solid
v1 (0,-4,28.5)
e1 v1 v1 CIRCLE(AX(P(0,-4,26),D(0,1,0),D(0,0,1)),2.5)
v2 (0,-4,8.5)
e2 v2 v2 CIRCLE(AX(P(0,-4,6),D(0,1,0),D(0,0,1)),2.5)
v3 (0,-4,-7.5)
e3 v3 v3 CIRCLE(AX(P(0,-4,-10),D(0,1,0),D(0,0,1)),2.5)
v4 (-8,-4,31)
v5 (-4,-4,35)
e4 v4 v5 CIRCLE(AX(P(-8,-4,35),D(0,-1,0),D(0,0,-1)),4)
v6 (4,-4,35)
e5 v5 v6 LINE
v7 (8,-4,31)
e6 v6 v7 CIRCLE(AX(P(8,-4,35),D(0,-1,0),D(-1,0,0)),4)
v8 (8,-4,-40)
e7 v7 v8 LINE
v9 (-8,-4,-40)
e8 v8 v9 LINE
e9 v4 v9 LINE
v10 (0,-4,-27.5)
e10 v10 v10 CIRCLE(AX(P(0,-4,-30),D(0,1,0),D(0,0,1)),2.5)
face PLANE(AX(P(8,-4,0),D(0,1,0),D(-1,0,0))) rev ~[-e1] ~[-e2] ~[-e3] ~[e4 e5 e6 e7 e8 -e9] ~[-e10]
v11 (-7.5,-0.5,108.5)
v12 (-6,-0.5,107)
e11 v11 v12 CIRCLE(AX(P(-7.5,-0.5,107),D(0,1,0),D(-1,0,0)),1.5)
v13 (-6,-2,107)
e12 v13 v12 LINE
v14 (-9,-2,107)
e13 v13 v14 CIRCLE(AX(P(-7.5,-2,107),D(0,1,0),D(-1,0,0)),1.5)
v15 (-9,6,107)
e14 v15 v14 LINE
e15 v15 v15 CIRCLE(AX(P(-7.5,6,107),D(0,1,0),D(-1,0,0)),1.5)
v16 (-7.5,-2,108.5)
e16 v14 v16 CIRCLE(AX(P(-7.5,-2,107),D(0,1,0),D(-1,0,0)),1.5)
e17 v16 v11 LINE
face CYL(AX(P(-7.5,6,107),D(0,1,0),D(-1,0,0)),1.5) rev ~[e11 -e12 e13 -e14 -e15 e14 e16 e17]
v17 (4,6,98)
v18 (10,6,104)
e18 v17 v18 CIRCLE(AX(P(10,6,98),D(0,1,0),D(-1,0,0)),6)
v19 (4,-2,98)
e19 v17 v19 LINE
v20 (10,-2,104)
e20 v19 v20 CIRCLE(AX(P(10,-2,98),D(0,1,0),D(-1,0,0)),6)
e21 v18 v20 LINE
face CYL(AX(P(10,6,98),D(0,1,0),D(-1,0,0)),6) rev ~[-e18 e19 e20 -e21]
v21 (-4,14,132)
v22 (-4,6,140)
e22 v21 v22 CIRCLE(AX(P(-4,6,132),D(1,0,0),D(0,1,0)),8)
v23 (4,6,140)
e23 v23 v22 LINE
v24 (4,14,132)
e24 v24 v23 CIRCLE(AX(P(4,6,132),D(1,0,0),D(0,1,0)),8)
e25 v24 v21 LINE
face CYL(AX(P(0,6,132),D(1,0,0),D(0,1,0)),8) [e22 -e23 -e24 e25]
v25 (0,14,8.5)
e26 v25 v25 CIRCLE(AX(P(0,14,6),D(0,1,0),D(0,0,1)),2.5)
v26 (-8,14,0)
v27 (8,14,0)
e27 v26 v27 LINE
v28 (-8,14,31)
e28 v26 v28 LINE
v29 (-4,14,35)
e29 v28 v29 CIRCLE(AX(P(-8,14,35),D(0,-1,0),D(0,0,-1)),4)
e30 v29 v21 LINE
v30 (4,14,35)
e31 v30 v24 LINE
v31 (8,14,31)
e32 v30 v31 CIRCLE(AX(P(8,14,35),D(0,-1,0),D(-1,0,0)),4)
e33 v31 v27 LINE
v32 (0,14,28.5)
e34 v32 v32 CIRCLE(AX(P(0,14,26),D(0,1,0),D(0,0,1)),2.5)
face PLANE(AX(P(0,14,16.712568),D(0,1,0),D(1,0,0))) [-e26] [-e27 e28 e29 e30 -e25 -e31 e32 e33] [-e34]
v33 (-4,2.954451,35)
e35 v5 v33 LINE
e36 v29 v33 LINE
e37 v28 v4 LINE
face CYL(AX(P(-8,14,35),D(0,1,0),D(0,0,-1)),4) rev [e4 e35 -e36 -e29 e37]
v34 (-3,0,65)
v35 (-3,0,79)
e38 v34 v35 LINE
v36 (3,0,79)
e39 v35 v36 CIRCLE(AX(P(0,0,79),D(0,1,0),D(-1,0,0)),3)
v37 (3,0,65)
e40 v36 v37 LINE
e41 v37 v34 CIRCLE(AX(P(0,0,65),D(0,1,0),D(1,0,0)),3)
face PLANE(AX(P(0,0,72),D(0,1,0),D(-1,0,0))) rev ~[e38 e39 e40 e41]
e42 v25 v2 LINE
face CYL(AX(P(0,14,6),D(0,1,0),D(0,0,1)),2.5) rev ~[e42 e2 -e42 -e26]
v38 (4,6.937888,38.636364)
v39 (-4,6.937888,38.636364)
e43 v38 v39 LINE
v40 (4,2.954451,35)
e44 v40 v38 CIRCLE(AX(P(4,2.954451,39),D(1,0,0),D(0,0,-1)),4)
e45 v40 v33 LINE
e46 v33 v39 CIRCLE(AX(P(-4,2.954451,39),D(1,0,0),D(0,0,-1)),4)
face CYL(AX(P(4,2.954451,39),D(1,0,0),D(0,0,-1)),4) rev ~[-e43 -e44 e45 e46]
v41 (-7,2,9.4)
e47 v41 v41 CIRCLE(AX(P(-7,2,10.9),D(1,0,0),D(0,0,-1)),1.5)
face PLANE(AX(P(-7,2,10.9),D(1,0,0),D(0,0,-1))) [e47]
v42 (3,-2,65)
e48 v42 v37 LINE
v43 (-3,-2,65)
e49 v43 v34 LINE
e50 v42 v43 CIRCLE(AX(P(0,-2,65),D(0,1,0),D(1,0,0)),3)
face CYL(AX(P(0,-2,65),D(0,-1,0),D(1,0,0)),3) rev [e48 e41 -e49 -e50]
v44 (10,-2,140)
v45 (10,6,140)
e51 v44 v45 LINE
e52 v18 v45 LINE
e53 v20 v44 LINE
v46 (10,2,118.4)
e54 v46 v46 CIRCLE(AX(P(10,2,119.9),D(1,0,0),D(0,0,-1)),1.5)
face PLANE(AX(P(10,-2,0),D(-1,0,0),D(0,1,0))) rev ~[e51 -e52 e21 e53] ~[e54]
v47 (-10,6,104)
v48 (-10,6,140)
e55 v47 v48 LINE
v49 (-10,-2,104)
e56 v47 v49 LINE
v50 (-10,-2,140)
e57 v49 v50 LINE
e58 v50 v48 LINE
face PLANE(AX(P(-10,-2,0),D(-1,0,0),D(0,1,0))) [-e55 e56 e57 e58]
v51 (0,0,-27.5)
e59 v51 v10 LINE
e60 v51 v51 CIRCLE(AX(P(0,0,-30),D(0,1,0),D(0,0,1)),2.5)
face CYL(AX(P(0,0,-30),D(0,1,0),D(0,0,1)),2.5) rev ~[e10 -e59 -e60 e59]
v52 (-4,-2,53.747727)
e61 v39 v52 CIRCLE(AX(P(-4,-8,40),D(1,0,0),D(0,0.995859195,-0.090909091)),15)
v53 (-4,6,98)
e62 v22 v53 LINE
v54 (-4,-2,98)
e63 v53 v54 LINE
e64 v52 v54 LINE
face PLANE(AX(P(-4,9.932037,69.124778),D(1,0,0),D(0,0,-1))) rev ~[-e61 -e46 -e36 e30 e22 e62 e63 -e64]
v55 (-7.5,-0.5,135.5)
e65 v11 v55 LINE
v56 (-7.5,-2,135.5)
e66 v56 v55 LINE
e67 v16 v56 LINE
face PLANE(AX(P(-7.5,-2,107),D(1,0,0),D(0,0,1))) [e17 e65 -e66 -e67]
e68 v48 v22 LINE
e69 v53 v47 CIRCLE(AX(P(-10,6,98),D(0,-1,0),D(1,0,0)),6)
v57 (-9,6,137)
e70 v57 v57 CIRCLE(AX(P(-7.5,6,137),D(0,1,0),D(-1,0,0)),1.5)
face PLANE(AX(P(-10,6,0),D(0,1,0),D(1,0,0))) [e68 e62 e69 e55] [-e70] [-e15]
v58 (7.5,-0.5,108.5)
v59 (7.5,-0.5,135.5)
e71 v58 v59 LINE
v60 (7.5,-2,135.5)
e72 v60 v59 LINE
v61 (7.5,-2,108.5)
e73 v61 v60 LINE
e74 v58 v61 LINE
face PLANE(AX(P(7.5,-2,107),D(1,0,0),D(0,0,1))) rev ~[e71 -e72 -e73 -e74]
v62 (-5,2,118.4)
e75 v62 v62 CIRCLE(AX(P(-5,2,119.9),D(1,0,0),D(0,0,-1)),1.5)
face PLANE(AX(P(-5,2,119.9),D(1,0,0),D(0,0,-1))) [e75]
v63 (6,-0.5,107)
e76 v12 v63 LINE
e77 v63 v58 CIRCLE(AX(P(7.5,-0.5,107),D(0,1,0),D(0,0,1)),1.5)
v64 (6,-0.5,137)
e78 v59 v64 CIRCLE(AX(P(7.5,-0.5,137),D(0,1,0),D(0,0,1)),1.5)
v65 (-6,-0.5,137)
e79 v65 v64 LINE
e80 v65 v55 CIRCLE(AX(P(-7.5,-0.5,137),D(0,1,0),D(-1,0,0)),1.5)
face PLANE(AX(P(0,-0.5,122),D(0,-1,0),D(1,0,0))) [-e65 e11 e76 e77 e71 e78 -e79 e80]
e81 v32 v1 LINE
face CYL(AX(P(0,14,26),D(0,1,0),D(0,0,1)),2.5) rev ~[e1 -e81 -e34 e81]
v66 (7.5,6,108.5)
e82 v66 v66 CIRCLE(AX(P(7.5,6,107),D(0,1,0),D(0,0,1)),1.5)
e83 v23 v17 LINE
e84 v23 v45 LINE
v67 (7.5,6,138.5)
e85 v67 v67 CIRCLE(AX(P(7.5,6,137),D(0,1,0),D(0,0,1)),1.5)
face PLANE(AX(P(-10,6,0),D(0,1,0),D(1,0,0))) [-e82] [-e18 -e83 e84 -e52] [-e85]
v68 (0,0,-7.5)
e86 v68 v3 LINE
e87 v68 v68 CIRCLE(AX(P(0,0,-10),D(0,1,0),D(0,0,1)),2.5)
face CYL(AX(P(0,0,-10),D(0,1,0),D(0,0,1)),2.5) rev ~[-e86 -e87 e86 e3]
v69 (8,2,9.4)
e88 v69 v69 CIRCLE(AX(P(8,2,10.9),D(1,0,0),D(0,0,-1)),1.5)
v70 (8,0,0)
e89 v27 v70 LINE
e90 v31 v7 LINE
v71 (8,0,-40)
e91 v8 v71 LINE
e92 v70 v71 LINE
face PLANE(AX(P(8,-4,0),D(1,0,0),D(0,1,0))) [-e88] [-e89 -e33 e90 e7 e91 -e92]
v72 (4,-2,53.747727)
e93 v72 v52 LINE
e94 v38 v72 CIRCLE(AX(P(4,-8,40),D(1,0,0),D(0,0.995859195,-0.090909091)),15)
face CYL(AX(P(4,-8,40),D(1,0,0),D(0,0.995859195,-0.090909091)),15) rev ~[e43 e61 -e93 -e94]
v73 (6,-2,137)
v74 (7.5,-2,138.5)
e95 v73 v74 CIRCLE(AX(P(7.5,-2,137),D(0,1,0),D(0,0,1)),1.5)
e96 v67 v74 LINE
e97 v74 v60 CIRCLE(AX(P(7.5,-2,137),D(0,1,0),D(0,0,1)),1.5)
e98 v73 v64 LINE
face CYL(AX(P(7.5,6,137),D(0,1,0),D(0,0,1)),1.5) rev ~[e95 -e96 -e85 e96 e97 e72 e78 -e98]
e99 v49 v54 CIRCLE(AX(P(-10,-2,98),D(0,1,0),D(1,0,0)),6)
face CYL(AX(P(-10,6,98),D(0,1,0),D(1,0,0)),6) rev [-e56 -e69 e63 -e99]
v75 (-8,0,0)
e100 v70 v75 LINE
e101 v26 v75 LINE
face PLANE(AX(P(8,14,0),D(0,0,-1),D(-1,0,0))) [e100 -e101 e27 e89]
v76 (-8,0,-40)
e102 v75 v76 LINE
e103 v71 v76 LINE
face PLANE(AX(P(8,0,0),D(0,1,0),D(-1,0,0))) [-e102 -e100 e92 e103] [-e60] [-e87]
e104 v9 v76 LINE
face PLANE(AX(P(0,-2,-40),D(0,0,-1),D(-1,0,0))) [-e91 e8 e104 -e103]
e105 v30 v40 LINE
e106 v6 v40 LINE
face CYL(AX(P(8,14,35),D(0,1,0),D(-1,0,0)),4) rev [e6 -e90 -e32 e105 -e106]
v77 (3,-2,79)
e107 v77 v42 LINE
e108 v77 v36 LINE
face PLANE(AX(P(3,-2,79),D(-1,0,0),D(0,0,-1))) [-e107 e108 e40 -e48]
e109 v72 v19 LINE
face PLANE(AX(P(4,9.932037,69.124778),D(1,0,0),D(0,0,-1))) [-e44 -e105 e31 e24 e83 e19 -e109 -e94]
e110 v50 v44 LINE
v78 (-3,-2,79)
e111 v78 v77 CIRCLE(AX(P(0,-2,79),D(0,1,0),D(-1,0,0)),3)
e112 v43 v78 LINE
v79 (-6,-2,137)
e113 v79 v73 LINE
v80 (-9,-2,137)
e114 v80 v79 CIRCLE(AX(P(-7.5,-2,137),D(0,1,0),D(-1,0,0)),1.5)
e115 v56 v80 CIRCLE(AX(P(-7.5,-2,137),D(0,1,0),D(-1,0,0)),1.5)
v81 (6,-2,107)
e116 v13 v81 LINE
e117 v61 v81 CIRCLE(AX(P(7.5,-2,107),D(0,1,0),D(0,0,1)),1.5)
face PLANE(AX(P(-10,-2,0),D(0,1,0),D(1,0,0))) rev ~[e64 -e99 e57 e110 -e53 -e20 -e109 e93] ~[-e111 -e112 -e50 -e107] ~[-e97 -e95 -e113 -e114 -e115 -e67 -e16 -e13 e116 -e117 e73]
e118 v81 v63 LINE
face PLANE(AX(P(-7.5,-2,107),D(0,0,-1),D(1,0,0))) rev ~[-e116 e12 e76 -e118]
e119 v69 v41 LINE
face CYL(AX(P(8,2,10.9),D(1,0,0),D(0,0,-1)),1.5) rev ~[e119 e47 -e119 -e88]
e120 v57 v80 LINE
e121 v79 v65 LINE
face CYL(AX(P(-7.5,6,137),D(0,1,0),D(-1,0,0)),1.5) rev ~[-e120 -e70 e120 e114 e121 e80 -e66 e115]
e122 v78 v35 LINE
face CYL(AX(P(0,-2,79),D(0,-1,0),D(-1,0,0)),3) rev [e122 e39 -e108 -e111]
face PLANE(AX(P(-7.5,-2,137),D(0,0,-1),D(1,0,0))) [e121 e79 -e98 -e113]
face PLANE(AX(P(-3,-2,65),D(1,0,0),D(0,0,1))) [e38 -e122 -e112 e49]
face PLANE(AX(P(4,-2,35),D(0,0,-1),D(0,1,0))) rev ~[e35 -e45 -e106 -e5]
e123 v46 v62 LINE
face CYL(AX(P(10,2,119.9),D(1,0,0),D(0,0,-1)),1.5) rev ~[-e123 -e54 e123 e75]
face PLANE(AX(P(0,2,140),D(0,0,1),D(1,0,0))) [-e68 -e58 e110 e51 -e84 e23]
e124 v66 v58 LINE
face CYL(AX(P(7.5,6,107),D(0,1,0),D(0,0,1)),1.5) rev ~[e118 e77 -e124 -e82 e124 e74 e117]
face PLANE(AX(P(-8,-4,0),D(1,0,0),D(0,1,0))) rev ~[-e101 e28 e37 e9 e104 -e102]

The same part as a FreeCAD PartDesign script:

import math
import FreeCAD as App
import Part
import Sketcher
Q = App.Units.Quantity

doc = App.newDocument("Part")
params = doc.addObject("Spreadsheet::Sheet", "Params")
for row, (alias, value) in enumerate([
    ("sketch1_width", "20 mm"),
    ("sketch1_height", "8 mm"),
    ("pad1_length", "140 mm"),
    ("sketch2_radius", "6 mm"),
    ("sketch2_height", "104 mm"),
    ("sketch3_radius", "8 mm"),
    ("sketch3_height", "140 mm"),
    ("pad2_length", "8 mm"),
    ("sketch4_radius", "4 mm"),
    ("sketch4_radius2", "15 mm"),
    ("sketch5_radius", "4 mm"),
    ("sketch5_width", "8 mm"),
    ("sketch5_height", "31 mm"),
    ("pad3_length", "18 mm"),
    ("sketch6_width", "16 mm"),
    ("sketch6_height", "4 mm"),
    ("pad4_length", "40 mm"),
    ("sketch7_diameter", "3 mm"),
    ("sketch8_width", "15 mm"),
    ("sketch8_height", "30 mm"),
    ("pocket4_length", "1.5 mm"),
    ("sketch9_radius", "3 mm"),
    ("sketch9_height", "14 mm"),
    ("pocket5_length", "2 mm"),
    ("sketch10_diameter", "5 mm"),
    ("sketch11_diameter", "5 mm"),
    ("sketch12_diameter", "3 mm"),
    ("pocket8_length", "15 mm"),
    ("sketch13_diameter", "3 mm"),
    ("pocket9_length", "15 mm"),
], start=1):
    params.set(f"A{row}", alias)
    params.set(f"B{row}", "=" + value)
    params.setAlias(f"B{row}", alias)

body = doc.addObject("PartDesign::Body", "Body")

# Sketch on XY plane
sketch1 = body.newObject("Sketcher::SketchObject", "Sketch")
sketch1.AttachmentSupport = (doc.getObject("XY_Plane"), [""])
sketch1.MapMode = "FlatFace"
sketch1.addGeometry(Part.LineSegment(App.Vector(-10, 6, 0), App.Vector(-10, -2, 0)), False)
sketch1.addGeometry(Part.LineSegment(App.Vector(-10, -2, 0), App.Vector(10, -2, 0)), False)
sketch1.addGeometry(Part.LineSegment(App.Vector(10, -2, 0), App.Vector(10, 6, 0)), False)
sketch1.addGeometry(Part.LineSegment(App.Vector(10, 6, 0), App.Vector(-10, 6, 0)), False)
sketch1.addConstraint(Sketcher.Constraint("Coincident", 0, 2, 1, 1))
sketch1.addConstraint(Sketcher.Constraint("Coincident", 1, 2, 2, 1))
sketch1.addConstraint(Sketcher.Constraint("Coincident", 2, 2, 3, 1))
sketch1.addConstraint(Sketcher.Constraint("Coincident", 3, 2, 0, 1))
sketch1.addConstraint(Sketcher.Constraint("Vertical", 0))
sketch1.addConstraint(Sketcher.Constraint("Horizontal", 1))
sketch1.addConstraint(Sketcher.Constraint("Vertical", 2))
sketch1.addConstraint(Sketcher.Constraint("Horizontal", 3))
sketch1.addConstraint(Sketcher.Constraint("DistanceX", 1, 1, 1, 2, Q("20 mm")))
sketch1.addConstraint(Sketcher.Constraint("DistanceY", 0, 2, 0, 1, Q("8 mm")))
sketch1.addConstraint(Sketcher.Constraint("DistanceX", 0, 2, -1, 1, Q("10 mm")))
sketch1.addConstraint(Sketcher.Constraint("DistanceY", 0, 2, -1, 1, Q("2 mm")))
sketch1.setExpression("Constraints[8]", "Params.sketch1_width")
sketch1.setExpression("Constraints[9]", "Params.sketch1_height")
pad1 = body.newObject("PartDesign::Pad", "Pad")
pad1.Profile = sketch1
pad1.setExpression("Length", "Params.pad1_length")

# Sketch on XZ plane
sketch2 = body.newObject("Sketcher::SketchObject", "Sketch001")
sketch2.AttachmentSupport = (doc.getObject("XZ_Plane"), [""])
sketch2.MapMode = "FlatFace"
sketch2.AttachmentOffset = App.Placement(App.Vector(0, 0, -6), App.Rotation())
sketch2.addGeometry(Part.LineSegment(App.Vector(-4, 0, 0), App.Vector(-10, 0, 0)), False)
sketch2.addGeometry(Part.LineSegment(App.Vector(-10, 0, 0), App.Vector(-10, 104, 0)), False)
sketch2.addGeometry(Part.ArcOfCircle(Part.Circle(App.Vector(-10, 98, 0), App.Vector(0, 0, 1), 6), math.radians(0), math.radians(90)), False)
sketch2.addGeometry(Part.LineSegment(App.Vector(-4, 98, 0), App.Vector(-4, 0, 0)), False)
sketch2.addGeometry(Part.LineSegment(App.Vector(10, 104, 0), App.Vector(10, 0, 0)), False)
sketch2.addGeometry(Part.LineSegment(App.Vector(10, 0, 0), App.Vector(4, 0, 0)), False)
sketch2.addGeometry(Part.LineSegment(App.Vector(4, 0, 0), App.Vector(4, 98, 0)), False)
sketch2.addGeometry(Part.ArcOfCircle(Part.Circle(App.Vector(10, 98, 0), App.Vector(0, 0, 1), 6), math.radians(90), math.radians(180)), False)
sketch2.addConstraint(Sketcher.Constraint("Coincident", 0, 2, 1, 1))
sketch2.addConstraint(Sketcher.Constraint("Coincident", 1, 2, 2, 2))
sketch2.addConstraint(Sketcher.Constraint("Tangent", 2, 1, 3, 1))
sketch2.addConstraint(Sketcher.Constraint("Coincident", 3, 2, 0, 1))
sketch2.addConstraint(Sketcher.Constraint("Coincident", 4, 2, 5, 1))
sketch2.addConstraint(Sketcher.Constraint("Coincident", 5, 2, 6, 1))
sketch2.addConstraint(Sketcher.Constraint("Tangent", 6, 2, 7, 2))
sketch2.addConstraint(Sketcher.Constraint("Coincident", 7, 1, 4, 1))
sketch2.addConstraint(Sketcher.Constraint("Horizontal", 0))
sketch2.addConstraint(Sketcher.Constraint("Vertical", 1))
sketch2.addConstraint(Sketcher.Constraint("Vertical", 3))
sketch2.addConstraint(Sketcher.Constraint("Vertical", 4))
sketch2.addConstraint(Sketcher.Constraint("Horizontal", 5))
sketch2.addConstraint(Sketcher.Constraint("Vertical", 6))
sketch2.addConstraint(Sketcher.Constraint("Equal", 2, 7))
sketch2.addConstraint(Sketcher.Constraint("Symmetric", 0, 2, 4, 2, -1, 1))
sketch2.addConstraint(Sketcher.Constraint("Symmetric", 2, 3, 7, 3, -2))
sketch2.addConstraint(Sketcher.Constraint("PointOnObject", 0, 2, -1))
sketch2.addConstraint(Sketcher.Constraint("Vertical", 2, 3, 0, 2))
sketch2.addConstraint(Sketcher.Constraint("Radius", 2, Q("6 mm")))
sketch2.addConstraint(Sketcher.Constraint("DistanceY", 1, 1, 1, 2, Q("104 mm")))
sketch2.addConstraint(Sketcher.Constraint("DistanceX", 2, 3, -1, 1, Q("10 mm")))
sketch2.setExpression("Constraints[19]", "Params.sketch2_radius")
sketch2.setExpression("Constraints[20]", "Params.sketch2_height")
pocket1 = body.newObject("PartDesign::Pocket", "Pocket")
pocket1.Profile = sketch2
pocket1.Type = "ThroughAll"
pocket1.Reversed = True

# Sketch on YZ plane
sketch3 = body.newObject("Sketcher::SketchObject", "Sketch002")
sketch3.AttachmentSupport = (doc.getObject("YZ_Plane"), [""])
sketch3.MapMode = "FlatFace"
sketch3.addGeometry(Part.LineSegment(App.Vector(6, 140, 0), App.Vector(6, 0, 0)), False)
sketch3.addGeometry(Part.LineSegment(App.Vector(6, 0, 0), App.Vector(14, 0, 0)), False)
sketch3.addGeometry(Part.LineSegment(App.Vector(14, 0, 0), App.Vector(14, 132, 0)), False)
sketch3.addGeometry(Part.ArcOfCircle(Part.Circle(App.Vector(6, 132, 0), App.Vector(0, 0, 1), 8), math.radians(0), math.radians(90)), False)
sketch3.addConstraint(Sketcher.Constraint("Coincident", 0, 2, 1, 1))
sketch3.addConstraint(Sketcher.Constraint("Coincident", 1, 2, 2, 1))
sketch3.addConstraint(Sketcher.Constraint("Tangent", 2, 2, 3, 1))
sketch3.addConstraint(Sketcher.Constraint("Coincident", 3, 2, 0, 1))
sketch3.addConstraint(Sketcher.Constraint("Vertical", 0))
sketch3.addConstraint(Sketcher.Constraint("Horizontal", 1))
sketch3.addConstraint(Sketcher.Constraint("Vertical", 2))
sketch3.addConstraint(Sketcher.Constraint("PointOnObject", 0, 2, -1))
sketch3.addConstraint(Sketcher.Constraint("Vertical", 3, 3, 0, 2))
sketch3.addConstraint(Sketcher.Constraint("Radius", 3, Q("8 mm")))
sketch3.addConstraint(Sketcher.Constraint("DistanceY", 0, 2, 0, 1, Q("140 mm")))
sketch3.addConstraint(Sketcher.Constraint("DistanceX", -1, 1, 3, 3, Q("6 mm")))
sketch3.setExpression("Constraints[9]", "Params.sketch3_radius")
sketch3.setExpression("Constraints[10]", "Params.sketch3_height")
pad2 = body.newObject("PartDesign::Pad", "Pad001")
pad2.Profile = sketch3
pad2.setExpression("Length", "Params.pad2_length")
pad2.Midplane = True

# Sketch on YZ plane
sketch4 = body.newObject("Sketcher::SketchObject", "Sketch003")
sketch4.AttachmentSupport = (doc.getObject("YZ_Plane"), [""])
sketch4.MapMode = "FlatFace"
sketch4.AttachmentOffset = App.Placement(App.Vector(0, 0, 4), App.Rotation())
sketch4.addGeometry(Part.LineSegment(App.Vector(-2, 35, 0), App.Vector(3, 35, 0)), False)
sketch4.addGeometry(Part.ArcOfCircle(Part.Circle(App.Vector(3, 39, 0), App.Vector(0, 0, 1), 4), math.radians(-90), math.radians(-5)), False)
sketch4.addGeometry(Part.ArcOfCircle(Part.Circle(App.Vector(-8, 40, 0), App.Vector(0, 0, 1), 15), math.radians(-5), math.radians(66)), False)
sketch4.addGeometry(Part.LineSegment(App.Vector(-2, 53.7, 0), App.Vector(-2, 35, 0)), False)
sketch4.addConstraint(Sketcher.Constraint("Tangent", 0, 2, 1, 1))
sketch4.addConstraint(Sketcher.Constraint("Tangent", 1, 2, 2, 1))
sketch4.addConstraint(Sketcher.Constraint("Coincident", 2, 2, 3, 1))
sketch4.addConstraint(Sketcher.Constraint("Coincident", 3, 2, 0, 1))
sketch4.addConstraint(Sketcher.Constraint("Horizontal", 0))
sketch4.addConstraint(Sketcher.Constraint("Vertical", 3))
sketch4.addConstraint(Sketcher.Constraint("Radius", 1, Q("4 mm")))
sketch4.addConstraint(Sketcher.Constraint("Radius", 2, Q("15 mm")))
sketch4.addConstraint(Sketcher.Constraint("DistanceY", -1, 1, 1, 3, Q("39 mm")))
sketch4.addConstraint(Sketcher.Constraint("DistanceX", 2, 3, -1, 1, Q("8 mm")))
sketch4.addConstraint(Sketcher.Constraint("DistanceY", -1, 1, 2, 3, Q("40 mm")))
sketch4.addConstraint(Sketcher.Constraint("DistanceX", 2, 2, -1, 1, Q("2 mm")))
sketch4.setExpression("Constraints[6]", "Params.sketch4_radius")
sketch4.setExpression("Constraints[7]", "Params.sketch4_radius2")
pocket2 = body.newObject("PartDesign::Pocket", "Pocket001")
pocket2.Profile = sketch4
pocket2.Type = "ThroughAll"

# Sketch on XZ plane
sketch5 = body.newObject("Sketcher::SketchObject", "Sketch004")
sketch5.AttachmentSupport = (doc.getObject("XZ_Plane"), [""])
sketch5.MapMode = "FlatFace"
sketch5.AttachmentOffset = App.Placement(App.Vector(0, 0, -14), App.Rotation())
sketch5.addGeometry(Part.LineSegment(App.Vector(-8, 0, 0), App.Vector(-8, 31, 0)), False)
sketch5.addGeometry(Part.ArcOfCircle(Part.Circle(App.Vector(-8, 35, 0), App.Vector(0, 0, 1), 4), math.radians(-90), math.radians(0)), False)
sketch5.addGeometry(Part.LineSegment(App.Vector(-4, 35, 0), App.Vector(4, 35, 0)), False)
sketch5.addGeometry(Part.ArcOfCircle(Part.Circle(App.Vector(8, 35, 0), App.Vector(0, 0, 1), 4), math.radians(180), math.radians(270)), False)
sketch5.addGeometry(Part.LineSegment(App.Vector(8, 31, 0), App.Vector(8, 0, 0)), False)
sketch5.addGeometry(Part.LineSegment(App.Vector(8, 0, 0), App.Vector(-8, 0, 0)), False)
sketch5.addConstraint(Sketcher.Constraint("Coincident", 0, 2, 1, 1))
sketch5.addConstraint(Sketcher.Constraint("Coincident", 1, 2, 2, 1))
sketch5.addConstraint(Sketcher.Constraint("Coincident", 2, 2, 3, 1))
sketch5.addConstraint(Sketcher.Constraint("Coincident", 3, 2, 4, 1))
sketch5.addConstraint(Sketcher.Constraint("Coincident", 4, 2, 5, 1))
sketch5.addConstraint(Sketcher.Constraint("Coincident", 5, 2, 0, 1))
sketch5.addConstraint(Sketcher.Constraint("Vertical", 0))
sketch5.addConstraint(Sketcher.Constraint("Horizontal", 2))
sketch5.addConstraint(Sketcher.Constraint("Vertical", 4))
sketch5.addConstraint(Sketcher.Constraint("Horizontal", 5))
sketch5.addConstraint(Sketcher.Constraint("Equal", 1, 3))
sketch5.addConstraint(Sketcher.Constraint("Symmetric", 4, 2, 5, 2, -1, 1))
sketch5.addConstraint(Sketcher.Constraint("Symmetric", 1, 3, 3, 3, -2))
sketch5.addConstraint(Sketcher.Constraint("Horizontal", 3, 3, 1, 2))
sketch5.addConstraint(Sketcher.Constraint("Vertical", 1, 3, 0, 2))
sketch5.addConstraint(Sketcher.Constraint("Radius", 1, Q("4 mm")))
sketch5.addConstraint(Sketcher.Constraint("DistanceX", 2, 1, 2, 2, Q("8 mm")))
sketch5.addConstraint(Sketcher.Constraint("DistanceY", 0, 1, 0, 2, Q("31 mm")))
sketch5.setExpression("Constraints[15]", "Params.sketch5_radius")
sketch5.setExpression("Constraints[16]", "Params.sketch5_width")
sketch5.setExpression("Constraints[17]", "Params.sketch5_height")
pad3 = body.newObject("PartDesign::Pad", "Pad002")
pad3.Profile = sketch5
pad3.setExpression("Length", "Params.pad3_length")

# Sketch on XY plane
sketch6 = body.newObject("Sketcher::SketchObject", "Sketch005")
sketch6.AttachmentSupport = (doc.getObject("XY_Plane"), [""])
sketch6.MapMode = "FlatFace"
sketch6.addGeometry(Part.LineSegment(App.Vector(8, 0, 0), App.Vector(8, -4, 0)), False)
sketch6.addGeometry(Part.LineSegment(App.Vector(8, -4, 0), App.Vector(-8, -4, 0)), False)
sketch6.addGeometry(Part.LineSegment(App.Vector(-8, -4, 0), App.Vector(-8, 0, 0)), False)
sketch6.addGeometry(Part.LineSegment(App.Vector(-8, 0, 0), App.Vector(8, 0, 0)), False)
sketch6.addConstraint(Sketcher.Constraint("Coincident", 0, 2, 1, 1))
sketch6.addConstraint(Sketcher.Constraint("Coincident", 1, 2, 2, 1))
sketch6.addConstraint(Sketcher.Constraint("Coincident", 2, 2, 3, 1))
sketch6.addConstraint(Sketcher.Constraint("Coincident", 3, 2, 0, 1))
sketch6.addConstraint(Sketcher.Constraint("Vertical", 0))
sketch6.addConstraint(Sketcher.Constraint("Horizontal", 1))
sketch6.addConstraint(Sketcher.Constraint("Vertical", 2))
sketch6.addConstraint(Sketcher.Constraint("Horizontal", 3))
sketch6.addConstraint(Sketcher.Constraint("Symmetric", 2, 2, 3, 2, -1, 1))
sketch6.addConstraint(Sketcher.Constraint("DistanceX", 1, 2, 1, 1, Q("16 mm")))
sketch6.addConstraint(Sketcher.Constraint("DistanceY", 0, 2, 0, 1, Q("4 mm")))
sketch6.setExpression("Constraints[9]", "Params.sketch6_width")
sketch6.setExpression("Constraints[10]", "Params.sketch6_height")
pad4 = body.newObject("PartDesign::Pad", "Pad003")
pad4.Profile = sketch6
pad4.setExpression("Length", "Params.pad4_length")
pad4.Reversed = True

# Sketch on XZ plane
sketch7 = body.newObject("Sketcher::SketchObject", "Sketch006")
sketch7.AttachmentSupport = (doc.getObject("XZ_Plane"), [""])
sketch7.MapMode = "FlatFace"
sketch7.AttachmentOffset = App.Placement(App.Vector(0, 0, -6), App.Rotation())
sketch7.addGeometry(Part.Circle(App.Vector(7.5, 137, 0), App.Vector(0, 0, 1), 1.5), False)
sketch7.addGeometry(Part.Circle(App.Vector(7.5, 107, 0), App.Vector(0, 0, 1), 1.5), False)
sketch7.addGeometry(Part.Circle(App.Vector(-7.5, 107, 0), App.Vector(0, 0, 1), 1.5), False)
sketch7.addGeometry(Part.Circle(App.Vector(-7.5, 137, 0), App.Vector(0, 0, 1), 1.5), False)
sketch7.addConstraint(Sketcher.Constraint("Equal", 0, 1))
sketch7.addConstraint(Sketcher.Constraint("Equal", 1, 2))
sketch7.addConstraint(Sketcher.Constraint("Equal", 2, 3))
sketch7.addConstraint(Sketcher.Constraint("Symmetric", 1, 3, 2, 3, -2))
sketch7.addConstraint(Sketcher.Constraint("Symmetric", 0, 3, 3, 3, -2))
sketch7.addConstraint(Sketcher.Constraint("Vertical", 0, 3, 1, 3))
sketch7.addConstraint(Sketcher.Constraint("Diameter", 0, Q("3 mm")))
sketch7.addConstraint(Sketcher.Constraint("DistanceY", -1, 1, 0, 3, Q("137 mm")))
sketch7.addConstraint(Sketcher.Constraint("DistanceY", -1, 1, 1, 3, Q("107 mm")))
sketch7.addConstraint(Sketcher.Constraint("DistanceX", 2, 3, 1, 3, Q("15 mm")))
sketch7.setExpression("Constraints[6]", "Params.sketch7_diameter")
pocket3 = body.newObject("PartDesign::Pocket", "Pocket002")
pocket3.Profile = sketch7
pocket3.Type = "ThroughAll"
pocket3.Reversed = True

# Sketch on XZ plane
sketch8 = body.newObject("Sketcher::SketchObject", "Sketch007")
sketch8.AttachmentSupport = (doc.getObject("XZ_Plane"), [""])
sketch8.MapMode = "FlatFace"
sketch8.AttachmentOffset = App.Placement(App.Vector(0, 0, 2), App.Rotation())
sketch8.addGeometry(Part.LineSegment(App.Vector(-8, 137, 0), App.Vector(-8, 107, 0)), False)
sketch8.addGeometry(Part.LineSegment(App.Vector(-8, 107, 0), App.Vector(8, 107, 0)), False)
sketch8.addGeometry(Part.LineSegment(App.Vector(8, 107, 0), App.Vector(8, 137, 0)), False)
sketch8.addGeometry(Part.LineSegment(App.Vector(8, 137, 0), App.Vector(-8, 137, 0)), False)
sketch8.addConstraint(Sketcher.Constraint("Coincident", 0, 2, 1, 1))
sketch8.addConstraint(Sketcher.Constraint("Coincident", 1, 2, 2, 1))
sketch8.addConstraint(Sketcher.Constraint("Coincident", 2, 2, 3, 1))
sketch8.addConstraint(Sketcher.Constraint("Coincident", 3, 2, 0, 1))
sketch8.addConstraint(Sketcher.Constraint("Vertical", 0))
sketch8.addConstraint(Sketcher.Constraint("Horizontal", 1))
sketch8.addConstraint(Sketcher.Constraint("Vertical", 2))
sketch8.addConstraint(Sketcher.Constraint("Horizontal", 3))
sketch8.addConstraint(Sketcher.Constraint("DistanceX", 1, 1, 1, 2, Q("15 mm")))
sketch8.addConstraint(Sketcher.Constraint("DistanceY", 0, 2, 0, 1, Q("30 mm")))
sketch8.addConstraint(Sketcher.Constraint("DistanceY", -1, 1, 0, 2, Q("107 mm")))
sketch8.addConstraint(Sketcher.Constraint("DistanceX", 0, 2, -1, 1, Q("7.5 mm")))
sketch8.setExpression("Constraints[8]", "Params.sketch8_width")
sketch8.setExpression("Constraints[9]", "Params.sketch8_height")
pocket4 = body.newObject("PartDesign::Pocket", "Pocket003")
pocket4.Profile = sketch8
pocket4.setExpression("Length", "Params.pocket4_length")

# Sketch on XZ plane
sketch9 = body.newObject("Sketcher::SketchObject", "Sketch008")
sketch9.AttachmentSupport = (doc.getObject("XZ_Plane"), [""])
sketch9.MapMode = "FlatFace"
sketch9.AttachmentOffset = App.Placement(App.Vector(0, 0, 2), App.Rotation())
sketch9.addGeometry(Part.LineSegment(App.Vector(3, 65, 0), App.Vector(3, 79, 0)), False)
sketch9.addGeometry(Part.ArcOfCircle(Part.Circle(App.Vector(0, 79, 0), App.Vector(0, 0, 1), 3), math.radians(0), math.radians(180)), False)
sketch9.addGeometry(Part.LineSegment(App.Vector(-3, 79, 0), App.Vector(-3, 65, 0)), False)
sketch9.addGeometry(Part.ArcOfCircle(Part.Circle(App.Vector(0, 65, 0), App.Vector(0, 0, 1), 3), math.radians(180), math.radians(360)), False)
sketch9.addConstraint(Sketcher.Constraint("Tangent", 0, 2, 1, 1))
sketch9.addConstraint(Sketcher.Constraint("Tangent", 1, 2, 2, 1))
sketch9.addConstraint(Sketcher.Constraint("Tangent", 2, 2, 3, 1))
sketch9.addConstraint(Sketcher.Constraint("Tangent", 3, 2, 0, 1))
sketch9.addConstraint(Sketcher.Constraint("Vertical", 0))
sketch9.addConstraint(Sketcher.Constraint("Vertical", 2))
sketch9.addConstraint(Sketcher.Constraint("PointOnObject", 1, 3, -2))
sketch9.addConstraint(Sketcher.Constraint("Radius", 1, Q("3 mm")))
sketch9.addConstraint(Sketcher.Constraint("DistanceY", 0, 1, 0, 2, Q("14 mm")))
sketch9.addConstraint(Sketcher.Constraint("DistanceY", -1, 1, 1, 3, Q("79 mm")))
sketch9.setExpression("Constraints[7]", "Params.sketch9_radius")
sketch9.setExpression("Constraints[8]", "Params.sketch9_height")
pocket5 = body.newObject("PartDesign::Pocket", "Pocket004")
pocket5.Profile = sketch9
pocket5.setExpression("Length", "Params.pocket5_length")

# Sketch on XZ plane
sketch10 = body.newObject("Sketcher::SketchObject", "Sketch009")
sketch10.AttachmentSupport = (doc.getObject("XZ_Plane"), [""])
sketch10.MapMode = "FlatFace"
sketch10.AttachmentOffset = App.Placement(App.Vector(0, 0, -14), App.Rotation())
sketch10.addGeometry(Part.Circle(App.Vector(0, 26, 0), App.Vector(0, 0, 1), 2.5), False)
sketch10.addGeometry(Part.Circle(App.Vector(0, 6, 0), App.Vector(0, 0, 1), 2.5), False)
sketch10.addConstraint(Sketcher.Constraint("Equal", 0, 1))
sketch10.addConstraint(Sketcher.Constraint("PointOnObject", 0, 3, -2))
sketch10.addConstraint(Sketcher.Constraint("PointOnObject", 1, 3, -2))
sketch10.addConstraint(Sketcher.Constraint("Diameter", 0, Q("5 mm")))
sketch10.addConstraint(Sketcher.Constraint("DistanceY", -1, 1, 0, 3, Q("26 mm")))
sketch10.addConstraint(Sketcher.Constraint("DistanceY", -1, 1, 1, 3, Q("6 mm")))
sketch10.setExpression("Constraints[3]", "Params.sketch10_diameter")
pocket6 = body.newObject("PartDesign::Pocket", "Pocket005")
pocket6.Profile = sketch10
pocket6.Type = "ThroughAll"
pocket6.Reversed = True

# Sketch on XZ plane
sketch11 = body.newObject("Sketcher::SketchObject", "Sketch010")
sketch11.AttachmentSupport = (doc.getObject("XZ_Plane"), [""])
sketch11.MapMode = "FlatFace"
sketch11.addGeometry(Part.Circle(App.Vector(0, -10, 0), App.Vector(0, 0, 1), 2.5), False)
sketch11.addGeometry(Part.Circle(App.Vector(0, -30, 0), App.Vector(0, 0, 1), 2.5), False)
sketch11.addConstraint(Sketcher.Constraint("Equal", 0, 1))
sketch11.addConstraint(Sketcher.Constraint("PointOnObject", 0, 3, -2))
sketch11.addConstraint(Sketcher.Constraint("PointOnObject", 1, 3, -2))
sketch11.addConstraint(Sketcher.Constraint("Diameter", 0, Q("5 mm")))
sketch11.addConstraint(Sketcher.Constraint("DistanceY", 0, 3, -1, 1, Q("10 mm")))
sketch11.addConstraint(Sketcher.Constraint("DistanceY", 1, 3, -1, 1, Q("30 mm")))
sketch11.setExpression("Constraints[3]", "Params.sketch11_diameter")
pocket7 = body.newObject("PartDesign::Pocket", "Pocket006")
pocket7.Profile = sketch11
pocket7.Type = "ThroughAll"
pocket7.Reversed = True

# Sketch on YZ plane
sketch12 = body.newObject("Sketcher::SketchObject", "Sketch011")
sketch12.AttachmentSupport = (doc.getObject("YZ_Plane"), [""])
sketch12.MapMode = "FlatFace"
sketch12.AttachmentOffset = App.Placement(App.Vector(0, 0, 10), App.Rotation())
sketch12.addGeometry(Part.Circle(App.Vector(2, 119.9, 0), App.Vector(0, 0, 1), 1.5), False)
sketch12.addConstraint(Sketcher.Constraint("Diameter", 0, Q("3 mm")))
sketch12.addConstraint(Sketcher.Constraint("DistanceX", -1, 1, 0, 3, Q("2 mm")))
sketch12.addConstraint(Sketcher.Constraint("DistanceY", -1, 1, 0, 3, Q("119.9 mm")))
sketch12.setExpression("Constraints[0]", "Params.sketch12_diameter")
pocket8 = body.newObject("PartDesign::Pocket", "Pocket007")
pocket8.Profile = sketch12
pocket8.setExpression("Length", "Params.pocket8_length")

# Sketch on YZ plane
sketch13 = body.newObject("Sketcher::SketchObject", "Sketch012")
sketch13.AttachmentSupport = (doc.getObject("YZ_Plane"), [""])
sketch13.MapMode = "FlatFace"
sketch13.AttachmentOffset = App.Placement(App.Vector(0, 0, 8), App.Rotation())
sketch13.addGeometry(Part.Circle(App.Vector(2, 10.9, 0), App.Vector(0, 0, 1), 1.5), False)
sketch13.addConstraint(Sketcher.Constraint("Diameter", 0, Q("3 mm")))
sketch13.addConstraint(Sketcher.Constraint("DistanceX", -1, 1, 0, 3, Q("2 mm")))
sketch13.addConstraint(Sketcher.Constraint("DistanceY", -1, 1, 0, 3, Q("10.9 mm")))
sketch13.setExpression("Constraints[0]", "Params.sketch13_diameter")
pocket9 = body.newObject("PartDesign::Pocket", "Pocket008")
pocket9.Profile = sketch13
pocket9.setExpression("Length", "Params.pocket9_length")

doc.recompute()
